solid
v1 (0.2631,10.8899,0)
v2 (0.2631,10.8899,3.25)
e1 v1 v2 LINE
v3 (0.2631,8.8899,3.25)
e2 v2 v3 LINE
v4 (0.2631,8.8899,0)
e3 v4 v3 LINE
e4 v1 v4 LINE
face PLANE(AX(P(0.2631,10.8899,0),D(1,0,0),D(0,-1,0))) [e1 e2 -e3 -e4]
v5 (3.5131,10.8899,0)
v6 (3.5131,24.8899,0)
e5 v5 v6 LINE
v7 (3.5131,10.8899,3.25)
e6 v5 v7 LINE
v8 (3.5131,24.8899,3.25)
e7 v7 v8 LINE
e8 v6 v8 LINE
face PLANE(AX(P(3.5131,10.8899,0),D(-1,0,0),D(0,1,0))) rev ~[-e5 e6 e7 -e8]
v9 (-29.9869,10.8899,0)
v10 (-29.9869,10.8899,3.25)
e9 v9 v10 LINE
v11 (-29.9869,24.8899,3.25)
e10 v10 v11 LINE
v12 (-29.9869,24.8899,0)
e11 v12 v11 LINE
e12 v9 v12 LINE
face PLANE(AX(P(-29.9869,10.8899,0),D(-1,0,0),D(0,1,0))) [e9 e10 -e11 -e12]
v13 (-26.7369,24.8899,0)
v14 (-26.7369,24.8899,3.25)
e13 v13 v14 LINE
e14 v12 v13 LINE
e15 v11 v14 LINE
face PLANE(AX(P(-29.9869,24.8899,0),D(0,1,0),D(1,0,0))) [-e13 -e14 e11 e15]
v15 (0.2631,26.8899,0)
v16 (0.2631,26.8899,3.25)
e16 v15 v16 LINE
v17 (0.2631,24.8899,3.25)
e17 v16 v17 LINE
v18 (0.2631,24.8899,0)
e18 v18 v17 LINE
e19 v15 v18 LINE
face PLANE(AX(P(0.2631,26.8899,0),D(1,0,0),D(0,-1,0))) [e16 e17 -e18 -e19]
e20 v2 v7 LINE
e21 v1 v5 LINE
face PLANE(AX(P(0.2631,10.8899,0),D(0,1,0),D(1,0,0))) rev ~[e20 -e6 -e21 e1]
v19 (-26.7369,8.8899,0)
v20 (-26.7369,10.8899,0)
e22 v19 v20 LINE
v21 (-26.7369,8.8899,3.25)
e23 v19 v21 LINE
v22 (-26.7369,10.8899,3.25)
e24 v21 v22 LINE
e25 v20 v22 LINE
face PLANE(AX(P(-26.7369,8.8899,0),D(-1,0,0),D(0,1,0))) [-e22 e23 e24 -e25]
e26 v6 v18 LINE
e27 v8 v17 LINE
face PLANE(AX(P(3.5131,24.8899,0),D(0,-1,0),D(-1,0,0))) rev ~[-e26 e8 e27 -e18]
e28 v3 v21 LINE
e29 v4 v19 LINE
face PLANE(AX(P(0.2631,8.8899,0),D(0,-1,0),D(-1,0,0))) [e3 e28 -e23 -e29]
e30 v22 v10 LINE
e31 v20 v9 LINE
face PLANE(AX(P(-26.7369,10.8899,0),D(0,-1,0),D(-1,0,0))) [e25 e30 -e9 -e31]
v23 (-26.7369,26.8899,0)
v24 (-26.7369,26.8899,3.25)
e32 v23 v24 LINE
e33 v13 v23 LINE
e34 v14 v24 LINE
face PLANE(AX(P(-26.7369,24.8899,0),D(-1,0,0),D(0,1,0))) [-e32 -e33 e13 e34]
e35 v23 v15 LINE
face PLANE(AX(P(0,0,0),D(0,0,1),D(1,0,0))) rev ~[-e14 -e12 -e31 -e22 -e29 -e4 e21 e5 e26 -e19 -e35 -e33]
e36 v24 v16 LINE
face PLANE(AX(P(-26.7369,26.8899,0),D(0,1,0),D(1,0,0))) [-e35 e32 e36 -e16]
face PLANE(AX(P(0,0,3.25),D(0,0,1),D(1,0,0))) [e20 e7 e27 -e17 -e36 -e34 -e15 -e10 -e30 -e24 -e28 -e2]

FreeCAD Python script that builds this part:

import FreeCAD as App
import Part
import Sketcher
Q = App.Units.Quantity

doc = App.newDocument("Part")
body = doc.addObject("PartDesign::Body", "Body")

# Sketch on XY plane
sketch1 = doc.addObject("Sketcher::SketchObject", "Sketch")
body.addObject(sketch1)
sketch1.AttachmentSupport = (doc.XY_Plane, [""])
sketch1.MapMode = "FlatFace"
sketch1.addGeometry(Part.LineSegment(App.Vector(0.3, 26.9, 0), App.Vector(-26.7, 26.9, 0)), False)
sketch1.addGeometry(Part.LineSegment(App.Vector(-26.7, 26.9, 0), App.Vector(-26.7, 24.9, 0)), False)
sketch1.addGeometry(Part.LineSegment(App.Vector(-26.7, 24.9, 0), App.Vector(-30, 24.9, 0)), False)
sketch1.addGeometry(Part.LineSegment(App.Vector(-30, 24.9, 0), App.Vector(-30, 10.9, 0)), False)
sketch1.addGeometry(Part.LineSegment(App.Vector(-30, 10.9, 0), App.Vector(-26.7, 10.9, 0)), False)
sketch1.addGeometry(Part.LineSegment(App.Vector(-26.7, 10.9, 0), App.Vector(-26.7, 8.9, 0)), False)
sketch1.addGeometry(Part.LineSegment(App.Vector(-26.7, 8.9, 0), App.Vector(0.3, 8.9, 0)), False)
sketch1.addGeometry(Part.LineSegment(App.Vector(0.3, 8.9, 0), App.Vector(0.3, 10.9, 0)), False)
sketch1.addGeometry(Part.LineSegment(App.Vector(0.3, 10.9, 0), App.Vector(3.5, 10.9, 0)), False)
sketch1.addGeometry(Part.LineSegment(App.Vector(3.5, 10.9, 0), App.Vector(3.5, 24.9, 0)), False)
sketch1.addGeometry(Part.LineSegment(App.Vector(3.5, 24.9, 0), App.Vector(0.3, 24.9, 0)), False)
sketch1.addGeometry(Part.LineSegment(App.Vector(0.3, 24.9, 0), App.Vector(0.3, 26.9, 0)), False)
sketch1.addConstraint(Sketcher.Constraint("Coincident", 0, 2, 1, 1))
sketch1.addConstraint(Sketcher.Constraint("Coincident", 1, 2, 2, 1))
sketch1.addConstraint(Sketcher.Constraint("Coincident", 2, 2, 3, 1))
sketch1.addConstraint(Sketcher.Constraint("Coincident", 3, 2, 4, 1))
sketch1.addConstraint(Sketcher.Constraint("Coincident", 4, 2, 5, 1))
sketch1.addConstraint(Sketcher.Constraint("Coincident", 5, 2, 6, 1))
sketch1.addConstraint(Sketcher.Constraint("Coincident", 6, 2, 7, 1))
sketch1.addConstraint(Sketcher.Constraint("Coincident", 7, 2, 8, 1))
sketch1.addConstraint(Sketcher.Constraint("Coincident", 8, 2, 9, 1))
sketch1.addConstraint(Sketcher.Constraint("Coincident", 9, 2, 10, 1))
sketch1.addConstraint(Sketcher.Constraint("Coincident", 10, 2, 11, 1))
sketch1.addConstraint(Sketcher.Constraint("Coincident", 11, 2, 0, 1))
sketch1.addConstraint(Sketcher.Constraint("Horizontal", 0))
sketch1.addConstraint(Sketcher.Constraint("Vertical", 1))
sketch1.addConstraint(Sketcher.Constraint("Horizontal", 2))
sketch1.addConstraint(Sketcher.Constraint("Vertical", 3))
sketch1.addConstraint(Sketcher.Constraint("Horizontal", 4))
sketch1.addConstraint(Sketcher.Constraint("Vertical", 5))
sketch1.addConstraint(Sketcher.Constraint("Horizontal", 6))
sketch1.addConstraint(Sketcher.Constraint("Vertical", 7))
sketch1.addConstraint(Sketcher.Constraint("Horizontal", 8))
sketch1.addConstraint(Sketcher.Constraint("Vertical", 9))
sketch1.addConstraint(Sketcher.Constraint("Horizontal", 10))
sketch1.addConstraint(Sketcher.Constraint("Vertical", 11))
sketch1.addConstraint(Sketcher.Constraint("Horizontal", 4, 2, 7, 2))
sketch1.addConstraint(Sketcher.Constraint("Horizontal", 2, 2, 9, 2))
sketch1.addConstraint(Sketcher.Constraint("Vertical", 1, 2, 4, 2))
sketch1.addConstraint(Sketcher.Constraint("Vertical", 7, 2, 10, 2))
sketch1.addConstraint(Sketcher.Constraint("Equal", 4, 8))
sketch1.addConstraint(Sketcher.Constraint("Equal", 1, 5))
sketch1.addConstraint(Sketcher.Constraint("DistanceX", 0, 2, 0, 1, Q("27 mm")))
sketch1.addConstraint(Sketcher.Constraint("DistanceY", 3, 2, 3, 1, Q("14 mm")))
sketch1.addConstraint(Sketcher.Constraint("DistanceY", 5, 2, 0, 2, Q("18 mm")))
sketch1.addConstraint(Sketcher.Constraint("DistanceX", 2, 2, 2, 1, Q("3.25 mm")))
sketch1.addConstraint(Sketcher.Constraint("DistanceY", -1, 1, 0, 2, Q("26.89 mm")))
sketch1.addConstraint(Sketcher.Constraint("DistanceX", 0, 2, -1, 1, Q("26.737 mm")))
pad1 = doc.addObject("PartDesign::Pad", "Pad")
body.addObject(pad1)
pad1.Profile = sketch1
pad1.Length = 3.25

doc.recompute()
